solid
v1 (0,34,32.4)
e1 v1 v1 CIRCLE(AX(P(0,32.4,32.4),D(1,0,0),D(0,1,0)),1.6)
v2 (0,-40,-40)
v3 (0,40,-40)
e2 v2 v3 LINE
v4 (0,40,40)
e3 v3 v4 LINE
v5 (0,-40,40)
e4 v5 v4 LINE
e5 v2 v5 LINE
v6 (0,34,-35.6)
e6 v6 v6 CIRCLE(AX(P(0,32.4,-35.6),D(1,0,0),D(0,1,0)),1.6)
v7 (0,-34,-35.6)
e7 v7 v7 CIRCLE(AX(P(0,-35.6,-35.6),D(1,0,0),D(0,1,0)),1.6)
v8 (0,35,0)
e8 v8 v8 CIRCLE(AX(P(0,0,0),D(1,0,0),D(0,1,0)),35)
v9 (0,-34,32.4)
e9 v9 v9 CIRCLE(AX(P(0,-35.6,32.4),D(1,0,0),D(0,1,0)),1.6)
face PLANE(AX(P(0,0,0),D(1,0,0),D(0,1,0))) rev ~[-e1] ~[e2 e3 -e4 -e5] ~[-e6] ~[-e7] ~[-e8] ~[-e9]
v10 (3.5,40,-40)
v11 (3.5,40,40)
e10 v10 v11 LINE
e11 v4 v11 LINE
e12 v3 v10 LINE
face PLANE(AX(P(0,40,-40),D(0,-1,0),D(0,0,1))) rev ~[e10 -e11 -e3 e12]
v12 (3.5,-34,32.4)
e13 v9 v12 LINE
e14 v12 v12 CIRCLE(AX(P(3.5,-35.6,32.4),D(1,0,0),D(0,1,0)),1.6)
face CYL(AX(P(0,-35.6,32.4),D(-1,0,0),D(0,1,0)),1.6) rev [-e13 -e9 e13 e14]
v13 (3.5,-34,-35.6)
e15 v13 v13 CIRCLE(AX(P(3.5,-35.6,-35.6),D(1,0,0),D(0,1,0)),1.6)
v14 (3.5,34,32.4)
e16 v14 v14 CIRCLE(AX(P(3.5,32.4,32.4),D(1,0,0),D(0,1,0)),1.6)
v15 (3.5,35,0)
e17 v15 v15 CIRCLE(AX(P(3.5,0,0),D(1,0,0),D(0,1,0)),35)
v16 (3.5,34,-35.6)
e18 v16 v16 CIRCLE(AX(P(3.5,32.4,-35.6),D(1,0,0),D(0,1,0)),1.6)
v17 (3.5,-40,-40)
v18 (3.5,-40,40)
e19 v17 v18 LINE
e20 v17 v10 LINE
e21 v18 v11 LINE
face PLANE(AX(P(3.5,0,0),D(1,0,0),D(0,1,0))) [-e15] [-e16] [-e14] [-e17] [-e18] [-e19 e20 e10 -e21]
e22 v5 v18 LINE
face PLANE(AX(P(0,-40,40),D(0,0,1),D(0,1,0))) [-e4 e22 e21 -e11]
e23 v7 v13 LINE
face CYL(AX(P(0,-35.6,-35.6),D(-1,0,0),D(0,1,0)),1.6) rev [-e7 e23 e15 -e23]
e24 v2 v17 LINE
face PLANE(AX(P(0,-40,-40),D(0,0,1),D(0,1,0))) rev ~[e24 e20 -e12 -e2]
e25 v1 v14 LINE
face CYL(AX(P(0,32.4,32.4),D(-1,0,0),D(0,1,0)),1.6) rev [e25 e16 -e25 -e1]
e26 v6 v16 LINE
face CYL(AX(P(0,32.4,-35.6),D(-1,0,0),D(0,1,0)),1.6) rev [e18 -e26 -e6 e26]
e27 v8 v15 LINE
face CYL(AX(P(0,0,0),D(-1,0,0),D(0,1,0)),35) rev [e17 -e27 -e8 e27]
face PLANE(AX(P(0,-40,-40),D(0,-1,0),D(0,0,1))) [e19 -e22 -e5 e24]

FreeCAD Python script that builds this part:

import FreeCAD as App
import Part
import Sketcher


def add_polygon(sketch, points):
    """Adds a closed chain of lines whose ends are joined by coincident constraints."""
    first, n = sketch.GeometryCount, len(points)
    for a, b in zip(points, points[1:] + points[:1]):
        sketch.addGeometry(Part.LineSegment(App.Vector(*a, 0), App.Vector(*b, 0)), False)
    for i in range(n):
        sketch.addConstraint(Sketcher.Constraint("Coincident", first + i, 2, first + (i + 1) % n, 1))

doc = App.newDocument("Part")
body = doc.addObject("PartDesign::Body", "Body")

sketch1 = doc.addObject("Sketcher::SketchObject", "Sketch")
body.addObject(sketch1)
sketch1.AttachmentSupport = (doc.YZ_Plane, [""])
sketch1.MapMode = "FlatFace"
add_polygon(sketch1, [(-40, 40), (-40, -40), (40, -40), (40, 40)])
sketch1.addGeometry(Part.Circle(App.Vector(-35.6, -35.6, 0), App.Vector(0, 0, 1), 1.6), False)
sketch1.addGeometry(Part.Circle(App.Vector(32.4, -35.6, 0), App.Vector(0, 0, 1), 1.6), False)
sketch1.addGeometry(Part.Circle(App.Vector(-35.6, 32.4, 0), App.Vector(0, 0, 1), 1.6), False)
sketch1.addGeometry(Part.Circle(App.Vector(0, 0, 0), App.Vector(0, 0, 1), 35), False)
sketch1.addGeometry(Part.Circle(App.Vector(32.4, 32.4, 0), App.Vector(0, 0, 1), 1.6), False)
sketch1.addConstraint([
    Sketcher.Constraint("Vertical", 0),
    Sketcher.Constraint("Horizontal", 1),
    Sketcher.Constraint("Vertical", 2),
    Sketcher.Constraint("Horizontal", 3),
    Sketcher.Constraint("Coincident", 7, 3, -1, 1),
    Sketcher.Constraint("Equal", 4, 5),
    Sketcher.Constraint("Equal", 5, 6),
    Sketcher.Constraint("Equal", 6, 8),
    Sketcher.Constraint("Symmetric", 0, 2, 2, 2, -1, 1),
    Sketcher.Constraint("Horizontal", 4, 3, 5, 3),
    Sketcher.Constraint("Horizontal", 6, 3, 8, 3),
    Sketcher.Constraint("Vertical", 4, 3, 6, 3),
    Sketcher.Constraint("Vertical", 5, 3, 8, 3),
    Sketcher.Constraint("Equal", 3, 0),
    Sketcher.Constraint("Diameter", 7, 70.0),
    Sketcher.Constraint("Diameter", 4, 3.2),
    Sketcher.Constraint("DistanceX", 1, 1, 1, 2, 80.0),
    Sketcher.Constraint("DistanceX", 4, 3, 5, 3, 68.0),
    Sketcher.Constraint("DistanceY", 4, 3, 6, 3, 68.0),
    Sketcher.Constraint("DistanceX", 4, 3, -1, 1, 35.6),
    Sketcher.Constraint("DistanceY", 4, 3, -1, 1, 35.6),
])
pad1 = doc.addObject("PartDesign::Pad", "Pad")
body.addObject(pad1)
pad1.Profile = sketch1
pad1.Length = 3.5

doc.recompute()
